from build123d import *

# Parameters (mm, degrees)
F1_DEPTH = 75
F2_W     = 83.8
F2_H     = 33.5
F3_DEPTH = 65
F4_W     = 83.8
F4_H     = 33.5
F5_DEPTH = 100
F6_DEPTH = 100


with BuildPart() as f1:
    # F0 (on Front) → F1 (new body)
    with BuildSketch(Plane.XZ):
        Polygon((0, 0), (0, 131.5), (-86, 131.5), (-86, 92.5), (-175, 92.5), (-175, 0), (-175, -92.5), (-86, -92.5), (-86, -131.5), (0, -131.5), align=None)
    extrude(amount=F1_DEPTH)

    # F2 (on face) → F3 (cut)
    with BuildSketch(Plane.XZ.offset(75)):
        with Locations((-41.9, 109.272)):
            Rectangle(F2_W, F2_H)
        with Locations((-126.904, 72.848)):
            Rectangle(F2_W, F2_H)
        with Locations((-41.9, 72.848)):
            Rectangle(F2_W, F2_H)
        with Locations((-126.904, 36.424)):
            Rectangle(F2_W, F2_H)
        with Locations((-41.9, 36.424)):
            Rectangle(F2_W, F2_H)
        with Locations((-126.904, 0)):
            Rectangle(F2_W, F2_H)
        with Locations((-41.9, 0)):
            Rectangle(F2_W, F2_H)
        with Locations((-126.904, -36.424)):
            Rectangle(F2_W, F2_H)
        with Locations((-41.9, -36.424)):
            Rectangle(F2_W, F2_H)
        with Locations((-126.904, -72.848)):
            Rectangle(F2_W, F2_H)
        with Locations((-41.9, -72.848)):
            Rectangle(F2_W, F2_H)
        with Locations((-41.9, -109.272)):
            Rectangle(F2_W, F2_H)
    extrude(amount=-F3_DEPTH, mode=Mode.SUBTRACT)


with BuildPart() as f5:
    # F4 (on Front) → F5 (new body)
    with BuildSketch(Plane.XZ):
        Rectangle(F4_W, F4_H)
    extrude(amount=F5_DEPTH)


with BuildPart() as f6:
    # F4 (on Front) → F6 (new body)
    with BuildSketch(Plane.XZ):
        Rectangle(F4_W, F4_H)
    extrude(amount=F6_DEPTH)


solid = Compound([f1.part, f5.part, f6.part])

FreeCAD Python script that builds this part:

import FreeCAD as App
import Part
import Sketcher

V = App.Vector


def add_polygon(sketch, points):
    """Adds a closed chain of lines whose ends are joined by coincident constraints."""
    first, n = sketch.GeometryCount, len(points)
    for a, b in zip(points, points[1:] + points[:1]):
        sketch.addGeometry(Part.LineSegment(App.Vector(*a, 0), App.Vector(*b, 0)), False)
    for i in range(n):
        sketch.addConstraint(Sketcher.Constraint("Coincident", first + i, 2, first + (i + 1) % n, 1))

doc = App.newDocument("Part")
params = doc.addObject("Spreadsheet::Sheet", "Params")
for row, (alias, value) in enumerate([
    ("sketch1_width", "86 mm"),
    ("sketch1_width2", "89 mm"),
    ("sketch1_height", "39 mm"),
    ("sketch1_height2", "185 mm"),
    ("pad1_length", "75 mm"),
    ("sketch2_width", "83.8 mm"),
    ("sketch2_height", "33.5 mm"),
    ("pocket1_length", "65 mm"),
    ("sketch3_width", "83.8 mm"),
    ("sketch3_height", "33.5 mm"),
    ("pad2_length", "100 mm"),
    ("sketch4_width", "83.8 mm"),
    ("sketch4_height", "33.5 mm"),
    ("pad3_length", "100 mm"),
], start=1):
    params.set(f"A{row}", alias)
    params.set(f"B{row}", "=" + value)
    params.setAlias(f"B{row}", alias)

body = doc.addObject("PartDesign::Body", "Body")

sketch1 = body.newObject("Sketcher::SketchObject", "Sketch")
sketch1.AttachmentSupport = (doc.getObject("XZ_Plane"), [""])
sketch1.MapMode = "FlatFace"
add_polygon(sketch1, [(0, 132), (-86, 132), (-86, 92), (-175, 92), (-175, -92), (-86, -92), (-86, -132), (0, -132)])
sketch1.addConstraint(Sketcher.Constraint("Horizontal", 0))
sketch1.addConstraint(Sketcher.Constraint("Vertical", 1))
sketch1.addConstraint(Sketcher.Constraint("Horizontal", 2))
sketch1.addConstraint(Sketcher.Constraint("Vertical", 3))
sketch1.addConstraint(Sketcher.Constraint("Horizontal", 4))
sketch1.addConstraint(Sketcher.Constraint("Vertical", 5))
sketch1.addConstraint(Sketcher.Constraint("Horizontal", 6))
sketch1.addConstraint(Sketcher.Constraint("Vertical", 7))
sketch1.addConstraint(Sketcher.Constraint("Symmetric", 6, 2, 7, 2, -1, 1))
sketch1.addConstraint(Sketcher.Constraint("Symmetric", 1, 2, 4, 2, -1))
sketch1.addConstraint(Sketcher.Constraint("DistanceX", 0, 2, 0, 1, 86.0))
sketch1.addConstraint(Sketcher.Constraint("DistanceX", 2, 2, 2, 1, 89.0))
sketch1.addConstraint(Sketcher.Constraint("DistanceY", 1, 2, 1, 1, 39.0))
sketch1.addConstraint(Sketcher.Constraint("DistanceY", 3, 2, 3, 1, 185.0))
sketch1.setExpression("Constraints[18]", "Params.sketch1_width")
sketch1.setExpression("Constraints[19]", "Params.sketch1_width2")
sketch1.setExpression("Constraints[20]", "Params.sketch1_height")
sketch1.setExpression("Constraints[21]", "Params.sketch1_height2")
pad1 = body.newObject("PartDesign::Pad", "Pad")
pad1.Profile = sketch1
pad1.setExpression("Length", "Params.pad1_length")

sketch2 = body.newObject("Sketcher::SketchObject", "Sketch001")
sketch2.AttachmentSupport = (doc.getObject("XZ_Plane"), [""])
sketch2.MapMode = "FlatFace"
sketch2.AttachmentOffset = App.Placement(V(0, 0, 75), App.Rotation())
add_polygon(sketch2, [(-84, 126), (-84, 93), (0, 93), (0, 126)])
add_polygon(sketch2, [(-169, 90), (-169, 56), (-85, 56), (-85, 90)])
add_polygon(sketch2, [(-84, 90), (-84, 56), (0, 56), (0, 90)])
add_polygon(sketch2, [(-169, 53), (-169, 20), (-85, 20), (-85, 53)])
add_polygon(sketch2, [(-84, 53), (-84, 20), (0, 20), (0, 53)])
add_polygon(sketch2, [(-169, 17), (-169, -17), (-85, -17), (-85, 17)])
add_polygon(sketch2, [(-84, 17), (-84, -17), (0, -17), (0, 17)])
add_polygon(sketch2, [(-169, -20), (-169, -53), (-85, -53), (-85, -20)])
add_polygon(sketch2, [(-84, -20), (-84, -53), (0, -53), (0, -20)])
add_polygon(sketch2, [(-169, -56), (-169, -90), (-85, -90), (-85, -56)])
add_polygon(sketch2, [(-84, -56), (-84, -90), (0, -90), (0, -56)])
add_polygon(sketch2, [(-84, -93), (-84, -126), (0, -126), (0, -93)])
sketch2.addConstraint(Sketcher.Constraint("Vertical", 0))
sketch2.addConstraint(Sketcher.Constraint("Horizontal", 1))
sketch2.addConstraint(Sketcher.Constraint("Vertical", 2))
sketch2.addConstraint(Sketcher.Constraint("Horizontal", 3))
sketch2.addConstraint(Sketcher.Constraint("Vertical", 4))
sketch2.addConstraint(Sketcher.Constraint("Horizontal", 5))
sketch2.addConstraint(Sketcher.Constraint("Vertical", 6))
sketch2.addConstraint(Sketcher.Constraint("Horizontal", 7))
sketch2.addConstraint(Sketcher.Constraint("Vertical", 8))
sketch2.addConstraint(Sketcher.Constraint("Horizontal", 9))
sketch2.addConstraint(Sketcher.Constraint("Vertical", 10))
sketch2.addConstraint(Sketcher.Constraint("Horizontal", 11))
sketch2.addConstraint(Sketcher.Constraint("Vertical", 12))
sketch2.addConstraint(Sketcher.Constraint("Horizontal", 13))
sketch2.addConstraint(Sketcher.Constraint("Vertical", 14))
sketch2.addConstraint(Sketcher.Constraint("Horizontal", 15))
sketch2.addConstraint(Sketcher.Constraint("Vertical", 16))
sketch2.addConstraint(Sketcher.Constraint("Horizontal", 17))
sketch2.addConstraint(Sketcher.Constraint("Vertical", 18))
sketch2.addConstraint(Sketcher.Constraint("Horizontal", 19))
sketch2.addConstraint(Sketcher.Constraint("Vertical", 20))
sketch2.addConstraint(Sketcher.Constraint("Horizontal", 21))
sketch2.addConstraint(Sketcher.Constraint("Vertical", 22))
sketch2.addConstraint(Sketcher.Constraint("Horizontal", 23))
sketch2.addConstraint(Sketcher.Constraint("Vertical", 24))
sketch2.addConstraint(Sketcher.Constraint("Horizontal", 25))
sketch2.addConstraint(Sketcher.Constraint("Vertical", 26))
sketch2.addConstraint(Sketcher.Constraint("Horizontal", 27))
sketch2.addConstraint(Sketcher.Constraint("Vertical", 28))
sketch2.addConstraint(Sketcher.Constraint("Horizontal", 29))
sketch2.addConstraint(Sketcher.Constraint("Vertical", 30))
sketch2.addConstraint(Sketcher.Constraint("Horizontal", 31))
sketch2.addConstraint(Sketcher.Constraint("Vertical", 32))
sketch2.addConstraint(Sketcher.Constraint("Horizontal", 33))
sketch2.addConstraint(Sketcher.Constraint("Vertical", 34))
sketch2.addConstraint(Sketcher.Constraint("Horizontal", 35))
sketch2.addConstraint(Sketcher.Constraint("Vertical", 36))
sketch2.addConstraint(Sketcher.Constraint("Horizontal", 37))
sketch2.addConstraint(Sketcher.Constraint("Vertical", 38))
sketch2.addConstraint(Sketcher.Constraint("Horizontal", 39))
sketch2.addConstraint(Sketcher.Constraint("Vertical", 40))
sketch2.addConstraint(Sketcher.Constraint("Horizontal", 41))
sketch2.addConstraint(Sketcher.Constraint("Vertical", 42))
sketch2.addConstraint(Sketcher.Constraint("Horizontal", 43))
sketch2.addConstraint(Sketcher.Constraint("Vertical", 44))
sketch2.addConstraint(Sketcher.Constraint("Horizontal", 45))
sketch2.addConstraint(Sketcher.Constraint("Vertical", 46))
sketch2.addConstraint(Sketcher.Constraint("Horizontal", 47))
sketch2.addConstraint(Sketcher.Constraint("Symmetric", 25, 2, 26, 2, -1, 1))
sketch2.addConstraint(Sketcher.Constraint("Symmetric", 18, 2, 33, 2, -1, 1))
sketch2.addConstraint(Sketcher.Constraint("Symmetric", 10, 2, 41, 2, -1, 1))
sketch2.addConstraint(Sketcher.Constraint("Symmetric", 2, 2, 45, 2, -1, 1))
sketch2.addConstraint(Sketcher.Constraint("Symmetric", 15, 2, 28, 2, -1))
sketch2.addConstraint(Sketcher.Constraint("Symmetric", 13, 2, 30, 2, -1))
sketch2.addConstraint(Sketcher.Constraint("Symmetric", 17, 2, 34, 2, -1))
sketch2.addConstraint(Sketcher.Constraint("Symmetric", 7, 2, 36, 2, -1))
sketch2.addConstraint(Sketcher.Constraint("Symmetric", 5, 2, 38, 2, -1))
sketch2.addConstraint(Sketcher.Constraint("Symmetric", 9, 2, 42, 2, -1))
sketch2.addConstraint(Sketcher.Constraint("Symmetric", 1, 2, 46, 2, -1))
sketch2.addConstraint(Sketcher.Constraint("Horizontal", 5, 2, 8, 2))
sketch2.addConstraint(Sketcher.Constraint("Horizontal", 7, 2, 10, 2))
sketch2.addConstraint(Sketcher.Constraint("Horizontal", 13, 2, 16, 2))
sketch2.addConstraint(Sketcher.Constraint("Horizontal", 15, 2, 18, 2))
sketch2.addConstraint(Sketcher.Constraint("Horizontal", 21, 2, 24, 2))
sketch2.addConstraint(Sketcher.Constraint("Horizontal", 23, 2, 26, 2))
sketch2.addConstraint(Sketcher.Constraint("Vertical", 3, 2, 8, 2))
sketch2.addConstraint(Sketcher.Constraint("Vertical", 7, 2, 12, 2))
sketch2.addConstraint(Sketcher.Constraint("Vertical", 6, 2, 13, 2))
sketch2.addConstraint(Sketcher.Constraint("Vertical", 11, 2, 16, 2))
sketch2.addConstraint(Sketcher.Constraint("Vertical", 15, 2, 20, 2))
sketch2.addConstraint(Sketcher.Constraint("Vertical", 14, 2, 21, 2))
sketch2.addConstraint(Sketcher.Constraint("Vertical", 19, 2, 24, 2))
sketch2.addConstraint(Sketcher.Constraint("Vertical", 27, 2, 32, 2))
sketch2.addConstraint(Sketcher.Constraint("Vertical", 35, 2, 40, 2))
sketch2.addConstraint(Sketcher.Constraint("Vertical", 43, 2, 44, 2))
sketch2.addConstraint(Sketcher.Constraint("Equal", 3, 5))
sketch2.addConstraint(Sketcher.Constraint("Equal", 2, 4))
sketch2.addConstraint(Sketcher.Constraint("Equal", 10, 12))
sketch2.addConstraint(Sketcher.Constraint("Equal", 18, 20))
sketch2.addConstraint(Sketcher.Constraint("DistanceX", 1, 1, 1, 2, 83.8))
sketch2.addConstraint(Sketcher.Constraint("DistanceY", 0, 2, 0, 1, 33.5))
sketch2.addConstraint(Sketcher.Constraint("DistanceY", -1, 1, 0, 2, 92.522))
sketch2.addConstraint(Sketcher.Constraint("DistanceX", 4, 2, -1, 1, 168.804))
sketch2.addConstraint(Sketcher.Constraint("DistanceY", -1, 1, 4, 2, 56.098))
sketch2.addConstraint(Sketcher.Constraint("DistanceY", -1, 1, 12, 2, 19.674))
sketch2.setExpression("Constraints[127]", "Params.sketch2_width")
sketch2.setExpression("Constraints[128]", "Params.sketch2_height")
pocket1 = body.newObject("PartDesign::Pocket", "Pocket")
pocket1.Profile = sketch2
pocket1.setExpression("Length", "Params.pocket1_length")
body2 = doc.addObject("PartDesign::Body", "Body001")

sketch3 = body2.newObject("Sketcher::SketchObject", "Sketch002")
sketch3.AttachmentSupport = (doc.getObject("XZ_Plane001"), [""])
sketch3.MapMode = "FlatFace"
add_polygon(sketch3, [(-42, 17), (-42, -17), (42, -17), (42, 17)])
sketch3.addConstraint(Sketcher.Constraint("Vertical", 0))
sketch3.addConstraint(Sketcher.Constraint("Horizontal", 1))
sketch3.addConstraint(Sketcher.Constraint("Vertical", 2))
sketch3.addConstraint(Sketcher.Constraint("Horizontal", 3))
sketch3.addConstraint(Sketcher.Constraint("Symmetric", 0, 2, 2, 2, -1, 1))
sketch3.addConstraint(Sketcher.Constraint("DistanceX", 1, 1, 1, 2, 83.8))
sketch3.addConstraint(Sketcher.Constraint("DistanceY", 0, 2, 0, 1, 33.5))
sketch3.setExpression("Constraints[9]", "Params.sketch3_width")
sketch3.setExpression("Constraints[10]", "Params.sketch3_height")
pad2 = body2.newObject("PartDesign::Pad", "Pad001")
pad2.Profile = sketch3
pad2.setExpression("Length", "Params.pad2_length")
body3 = doc.addObject("PartDesign::Body", "Body002")

sketch4 = body3.newObject("Sketcher::SketchObject", "Sketch003")
sketch4.AttachmentSupport = (doc.getObject("XZ_Plane002"), [""])
sketch4.MapMode = "FlatFace"
add_polygon(sketch4, [(-42, 17), (-42, -17), (42, -17), (42, 17)])
sketch4.addConstraint(Sketcher.Constraint("Vertical", 0))
sketch4.addConstraint(Sketcher.Constraint("Horizontal", 1))
sketch4.addConstraint(Sketcher.Constraint("Vertical", 2))
sketch4.addConstraint(Sketcher.Constraint("Horizontal", 3))
sketch4.addConstraint(Sketcher.Constraint("Symmetric", 0, 2, 2, 2, -1, 1))
sketch4.addConstraint(Sketcher.Constraint("DistanceX", 1, 1, 1, 2, 83.8))
sketch4.addConstraint(Sketcher.Constraint("DistanceY", 0, 2, 0, 1, 33.5))
sketch4.setExpression("Constraints[9]", "Params.sketch4_width")
sketch4.setExpression("Constraints[10]", "Params.sketch4_height")
pad3 = body3.newObject("PartDesign::Pad", "Pad002")
pad3.Profile = sketch4
pad3.setExpression("Length", "Params.pad3_length")

doc.recompute()
